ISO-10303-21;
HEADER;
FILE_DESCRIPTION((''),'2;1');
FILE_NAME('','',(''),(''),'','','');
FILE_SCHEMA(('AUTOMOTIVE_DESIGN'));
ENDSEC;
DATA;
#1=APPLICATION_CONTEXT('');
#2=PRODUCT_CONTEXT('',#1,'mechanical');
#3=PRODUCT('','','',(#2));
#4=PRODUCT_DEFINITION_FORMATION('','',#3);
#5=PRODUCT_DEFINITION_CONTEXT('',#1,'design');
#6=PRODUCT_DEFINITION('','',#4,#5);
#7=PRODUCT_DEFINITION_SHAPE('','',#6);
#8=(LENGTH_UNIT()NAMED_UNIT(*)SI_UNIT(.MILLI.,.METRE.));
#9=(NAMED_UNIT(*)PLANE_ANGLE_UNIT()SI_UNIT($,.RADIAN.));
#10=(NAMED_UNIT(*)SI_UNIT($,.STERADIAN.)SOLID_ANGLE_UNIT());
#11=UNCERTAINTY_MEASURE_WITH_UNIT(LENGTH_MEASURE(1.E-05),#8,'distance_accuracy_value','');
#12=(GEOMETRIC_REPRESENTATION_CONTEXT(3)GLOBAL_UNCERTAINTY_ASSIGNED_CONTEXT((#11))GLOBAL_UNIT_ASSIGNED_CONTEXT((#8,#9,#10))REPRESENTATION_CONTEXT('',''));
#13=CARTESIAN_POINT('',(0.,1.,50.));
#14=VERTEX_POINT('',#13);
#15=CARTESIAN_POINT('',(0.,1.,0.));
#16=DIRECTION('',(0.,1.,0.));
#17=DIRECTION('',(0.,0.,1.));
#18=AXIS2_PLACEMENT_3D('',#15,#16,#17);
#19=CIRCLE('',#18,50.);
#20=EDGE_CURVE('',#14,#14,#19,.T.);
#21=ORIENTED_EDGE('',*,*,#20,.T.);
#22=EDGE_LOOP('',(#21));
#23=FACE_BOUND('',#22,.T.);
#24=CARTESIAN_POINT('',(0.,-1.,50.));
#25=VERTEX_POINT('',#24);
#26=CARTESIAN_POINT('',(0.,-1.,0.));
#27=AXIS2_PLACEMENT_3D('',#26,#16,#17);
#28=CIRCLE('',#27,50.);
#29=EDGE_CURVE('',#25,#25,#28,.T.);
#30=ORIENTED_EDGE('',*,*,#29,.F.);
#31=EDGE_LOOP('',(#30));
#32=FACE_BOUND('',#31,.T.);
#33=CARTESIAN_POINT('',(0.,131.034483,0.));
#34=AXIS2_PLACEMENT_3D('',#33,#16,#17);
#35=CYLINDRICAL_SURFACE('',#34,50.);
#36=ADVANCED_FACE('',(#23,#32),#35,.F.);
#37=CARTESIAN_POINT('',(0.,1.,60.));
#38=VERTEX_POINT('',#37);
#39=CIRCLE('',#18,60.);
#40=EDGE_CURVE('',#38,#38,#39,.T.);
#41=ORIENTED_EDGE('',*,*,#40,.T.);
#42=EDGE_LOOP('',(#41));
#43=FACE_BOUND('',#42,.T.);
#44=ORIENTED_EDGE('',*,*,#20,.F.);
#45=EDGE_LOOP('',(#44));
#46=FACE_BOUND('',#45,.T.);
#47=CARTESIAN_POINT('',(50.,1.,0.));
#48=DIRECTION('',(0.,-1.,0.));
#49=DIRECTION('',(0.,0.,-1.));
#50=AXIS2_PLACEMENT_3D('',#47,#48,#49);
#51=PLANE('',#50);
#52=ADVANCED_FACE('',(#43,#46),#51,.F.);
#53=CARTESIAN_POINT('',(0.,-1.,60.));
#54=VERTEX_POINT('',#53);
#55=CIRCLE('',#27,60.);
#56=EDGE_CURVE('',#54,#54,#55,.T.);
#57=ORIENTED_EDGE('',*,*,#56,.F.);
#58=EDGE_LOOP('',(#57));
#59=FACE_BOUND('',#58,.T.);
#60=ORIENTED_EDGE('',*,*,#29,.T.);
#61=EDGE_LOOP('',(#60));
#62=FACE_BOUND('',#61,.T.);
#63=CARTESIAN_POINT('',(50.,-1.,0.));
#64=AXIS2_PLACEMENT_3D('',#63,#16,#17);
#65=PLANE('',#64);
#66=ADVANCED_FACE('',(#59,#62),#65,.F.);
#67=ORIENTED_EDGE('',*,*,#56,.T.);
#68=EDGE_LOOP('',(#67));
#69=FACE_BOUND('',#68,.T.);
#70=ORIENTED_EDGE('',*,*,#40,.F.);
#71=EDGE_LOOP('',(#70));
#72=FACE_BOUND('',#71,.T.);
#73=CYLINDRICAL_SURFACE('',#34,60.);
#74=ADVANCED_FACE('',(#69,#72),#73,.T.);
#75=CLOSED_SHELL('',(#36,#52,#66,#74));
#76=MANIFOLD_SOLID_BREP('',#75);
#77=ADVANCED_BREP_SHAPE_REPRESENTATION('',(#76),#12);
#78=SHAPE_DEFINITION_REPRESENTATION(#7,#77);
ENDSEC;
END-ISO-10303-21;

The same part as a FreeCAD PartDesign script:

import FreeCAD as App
import Part
import Sketcher
Q = App.Units.Quantity

doc = App.newDocument("Part")
body = doc.addObject("PartDesign::Body", "Body")

# Sketch on XY plane
sketch1 = body.newObject("Sketcher::SketchObject", "Sketch")
sketch1.AttachmentSupport = (doc.getObject("XY_Plane"), [""])
sketch1.MapMode = "FlatFace"
sketch1.addGeometry(Part.LineSegment(App.Vector(50, 1, 0), App.Vector(50, -1, 0)), False)
sketch1.addGeometry(Part.LineSegment(App.Vector(50, -1, 0), App.Vector(60, -1, 0)), False)
sketch1.addGeometry(Part.LineSegment(App.Vector(60, -1, 0), App.Vector(60, 1, 0)), False)
sketch1.addGeometry(Part.LineSegment(App.Vector(60, 1, 0), App.Vector(50, 1, 0)), False)
sketch1.addConstraint(Sketcher.Constraint("Coincident", 0, 2, 1, 1))
sketch1.addConstraint(Sketcher.Constraint("Coincident", 1, 2, 2, 1))
sketch1.addConstraint(Sketcher.Constraint("Coincident", 2, 2, 3, 1))
sketch1.addConstraint(Sketcher.Constraint("Coincident", 3, 2, 0, 1))
sketch1.addConstraint(Sketcher.Constraint("Vertical", 0))
sketch1.addConstraint(Sketcher.Constraint("Horizontal", 1))
sketch1.addConstraint(Sketcher.Constraint("Vertical", 2))
sketch1.addConstraint(Sketcher.Constraint("Horizontal", 3))
sketch1.addConstraint(Sketcher.Constraint("DistanceX", 1, 1, 1, 2, Q("10 mm")))
sketch1.addConstraint(Sketcher.Constraint("DistanceY", 0, 2, 0, 1, Q("2 mm")))
sketch1.addConstraint(Sketcher.Constraint("DistanceX", -1, 1, 0, 2, Q("50 mm")))
sketch1.addConstraint(Sketcher.Constraint("DistanceY", 0, 2, -1, 1, Q("1 mm")))
revolution = body.newObject("PartDesign::Revolution", "Revolution")
revolution.Profile = sketch1
revolution.ReferenceAxis = (sketch1, ["V_Axis"])
revolution.Angle = 360

doc.recompute()
